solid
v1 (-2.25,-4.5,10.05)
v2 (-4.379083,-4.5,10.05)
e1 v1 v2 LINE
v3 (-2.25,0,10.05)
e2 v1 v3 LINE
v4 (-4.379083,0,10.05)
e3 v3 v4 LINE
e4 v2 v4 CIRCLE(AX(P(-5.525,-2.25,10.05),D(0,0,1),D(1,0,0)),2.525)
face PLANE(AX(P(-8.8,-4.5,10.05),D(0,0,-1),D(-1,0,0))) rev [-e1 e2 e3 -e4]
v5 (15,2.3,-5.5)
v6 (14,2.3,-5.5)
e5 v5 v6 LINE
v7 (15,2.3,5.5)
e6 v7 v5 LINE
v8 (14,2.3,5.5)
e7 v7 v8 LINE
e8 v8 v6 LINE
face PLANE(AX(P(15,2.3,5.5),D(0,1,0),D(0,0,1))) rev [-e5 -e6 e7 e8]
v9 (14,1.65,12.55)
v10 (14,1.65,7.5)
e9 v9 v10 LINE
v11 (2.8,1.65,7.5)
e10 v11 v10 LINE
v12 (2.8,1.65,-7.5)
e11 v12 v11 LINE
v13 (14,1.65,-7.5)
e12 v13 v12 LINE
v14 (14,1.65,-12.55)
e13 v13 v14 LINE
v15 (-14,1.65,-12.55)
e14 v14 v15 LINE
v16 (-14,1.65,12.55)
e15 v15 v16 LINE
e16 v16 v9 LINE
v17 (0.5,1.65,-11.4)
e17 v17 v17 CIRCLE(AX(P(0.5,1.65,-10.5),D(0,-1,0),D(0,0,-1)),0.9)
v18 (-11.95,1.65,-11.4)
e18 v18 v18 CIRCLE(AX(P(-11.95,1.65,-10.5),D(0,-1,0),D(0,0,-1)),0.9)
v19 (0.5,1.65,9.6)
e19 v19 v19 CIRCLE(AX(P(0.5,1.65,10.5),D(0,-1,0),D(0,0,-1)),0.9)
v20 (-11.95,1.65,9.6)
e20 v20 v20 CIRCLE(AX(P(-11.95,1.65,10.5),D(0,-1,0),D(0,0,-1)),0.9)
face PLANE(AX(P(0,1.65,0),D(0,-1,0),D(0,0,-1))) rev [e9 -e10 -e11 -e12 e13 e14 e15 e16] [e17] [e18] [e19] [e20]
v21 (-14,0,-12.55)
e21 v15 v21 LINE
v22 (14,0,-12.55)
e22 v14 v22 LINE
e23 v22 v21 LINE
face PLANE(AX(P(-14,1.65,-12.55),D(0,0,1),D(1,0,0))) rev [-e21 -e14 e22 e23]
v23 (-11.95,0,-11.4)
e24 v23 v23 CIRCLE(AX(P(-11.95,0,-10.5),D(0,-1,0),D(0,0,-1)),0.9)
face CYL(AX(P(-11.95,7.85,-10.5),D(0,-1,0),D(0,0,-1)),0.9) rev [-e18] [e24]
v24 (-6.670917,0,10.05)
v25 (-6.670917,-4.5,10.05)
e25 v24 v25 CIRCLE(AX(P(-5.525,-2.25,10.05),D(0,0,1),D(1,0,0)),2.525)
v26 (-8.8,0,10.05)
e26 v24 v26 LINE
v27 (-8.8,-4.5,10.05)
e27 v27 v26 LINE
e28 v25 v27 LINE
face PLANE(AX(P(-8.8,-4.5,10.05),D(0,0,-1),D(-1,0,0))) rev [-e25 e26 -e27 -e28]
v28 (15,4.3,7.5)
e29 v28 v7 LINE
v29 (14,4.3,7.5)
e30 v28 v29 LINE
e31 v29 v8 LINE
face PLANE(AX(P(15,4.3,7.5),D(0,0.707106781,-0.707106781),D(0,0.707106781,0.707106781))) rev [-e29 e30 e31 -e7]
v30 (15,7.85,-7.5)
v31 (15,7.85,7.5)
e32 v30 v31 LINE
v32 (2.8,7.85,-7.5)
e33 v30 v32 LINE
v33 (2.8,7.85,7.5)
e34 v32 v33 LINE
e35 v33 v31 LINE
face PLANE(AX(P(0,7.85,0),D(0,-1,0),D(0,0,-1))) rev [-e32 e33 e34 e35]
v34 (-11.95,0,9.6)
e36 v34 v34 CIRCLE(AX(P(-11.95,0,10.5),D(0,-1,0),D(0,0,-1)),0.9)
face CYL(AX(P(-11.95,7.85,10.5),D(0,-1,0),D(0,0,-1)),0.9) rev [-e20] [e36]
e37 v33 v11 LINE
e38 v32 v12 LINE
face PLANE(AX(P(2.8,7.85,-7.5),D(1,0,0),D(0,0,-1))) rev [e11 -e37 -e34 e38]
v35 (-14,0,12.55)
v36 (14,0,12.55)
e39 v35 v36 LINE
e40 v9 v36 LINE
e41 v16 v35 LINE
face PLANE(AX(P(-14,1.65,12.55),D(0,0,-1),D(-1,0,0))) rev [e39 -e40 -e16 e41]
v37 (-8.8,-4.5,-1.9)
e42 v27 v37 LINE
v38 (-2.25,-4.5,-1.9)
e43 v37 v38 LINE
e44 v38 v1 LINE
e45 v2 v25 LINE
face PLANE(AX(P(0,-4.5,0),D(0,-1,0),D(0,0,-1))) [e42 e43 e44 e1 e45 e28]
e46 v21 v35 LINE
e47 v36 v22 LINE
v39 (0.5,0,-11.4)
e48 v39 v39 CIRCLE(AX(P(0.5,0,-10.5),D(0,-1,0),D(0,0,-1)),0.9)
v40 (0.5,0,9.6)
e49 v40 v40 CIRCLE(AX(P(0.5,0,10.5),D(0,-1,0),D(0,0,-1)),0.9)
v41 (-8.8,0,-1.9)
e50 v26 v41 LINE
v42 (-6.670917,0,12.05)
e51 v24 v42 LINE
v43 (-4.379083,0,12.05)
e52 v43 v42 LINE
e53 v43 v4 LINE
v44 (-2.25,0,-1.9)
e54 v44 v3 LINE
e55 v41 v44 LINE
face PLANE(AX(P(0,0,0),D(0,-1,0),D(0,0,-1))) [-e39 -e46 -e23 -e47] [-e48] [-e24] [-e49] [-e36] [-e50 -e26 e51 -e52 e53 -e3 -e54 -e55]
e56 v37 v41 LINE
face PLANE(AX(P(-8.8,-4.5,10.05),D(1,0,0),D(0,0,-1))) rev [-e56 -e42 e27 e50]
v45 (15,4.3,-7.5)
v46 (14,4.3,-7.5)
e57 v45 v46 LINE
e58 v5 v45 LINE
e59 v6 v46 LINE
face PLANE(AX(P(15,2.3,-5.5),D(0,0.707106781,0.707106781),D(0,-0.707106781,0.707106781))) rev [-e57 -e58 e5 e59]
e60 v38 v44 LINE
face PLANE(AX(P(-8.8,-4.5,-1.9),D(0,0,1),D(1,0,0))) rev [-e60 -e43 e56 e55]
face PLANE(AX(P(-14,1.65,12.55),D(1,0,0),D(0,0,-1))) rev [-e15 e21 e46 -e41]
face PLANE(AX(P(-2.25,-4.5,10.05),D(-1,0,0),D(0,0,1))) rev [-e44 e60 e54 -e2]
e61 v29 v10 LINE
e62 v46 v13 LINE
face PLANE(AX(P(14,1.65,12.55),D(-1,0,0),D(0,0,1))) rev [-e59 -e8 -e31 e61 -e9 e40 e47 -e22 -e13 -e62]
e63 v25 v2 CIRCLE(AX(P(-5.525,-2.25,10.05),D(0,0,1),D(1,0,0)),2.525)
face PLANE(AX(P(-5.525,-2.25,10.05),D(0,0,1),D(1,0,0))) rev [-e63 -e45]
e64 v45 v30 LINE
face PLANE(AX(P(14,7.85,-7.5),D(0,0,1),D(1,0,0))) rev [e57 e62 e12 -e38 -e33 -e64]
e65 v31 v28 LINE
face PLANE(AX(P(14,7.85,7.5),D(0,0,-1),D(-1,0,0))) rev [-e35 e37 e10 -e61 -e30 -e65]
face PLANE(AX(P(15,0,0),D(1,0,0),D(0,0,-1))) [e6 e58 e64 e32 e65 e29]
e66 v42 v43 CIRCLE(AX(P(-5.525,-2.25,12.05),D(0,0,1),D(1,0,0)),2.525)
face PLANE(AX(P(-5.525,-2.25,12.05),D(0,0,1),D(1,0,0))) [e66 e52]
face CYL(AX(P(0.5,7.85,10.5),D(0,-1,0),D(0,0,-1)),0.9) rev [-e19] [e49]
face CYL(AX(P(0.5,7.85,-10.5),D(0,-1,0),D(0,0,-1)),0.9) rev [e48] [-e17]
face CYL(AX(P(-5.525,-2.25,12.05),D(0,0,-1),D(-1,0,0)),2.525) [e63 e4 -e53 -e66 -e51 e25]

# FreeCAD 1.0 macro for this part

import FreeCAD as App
import Part
import Sketcher

V = App.Vector


def add_polygon(sketch, points):
    """Adds a closed chain of lines whose ends are joined by coincident constraints."""
    first, n = sketch.GeometryCount, len(points)
    for a, b in zip(points, points[1:] + points[:1]):
        sketch.addGeometry(Part.LineSegment(App.Vector(*a, 0), App.Vector(*b, 0)), False)
    for i in range(n):
        sketch.addConstraint(Sketcher.Constraint("Coincident", first + i, 2, first + (i + 1) % n, 1))

doc = App.newDocument("Part")
body = doc.addObject("PartDesign::Body", "Body")

# Sketch on XZ plane
sketch1 = body.newObject("Sketcher::SketchObject", "Sketch")
sketch1.AttachmentSupport = (doc.getObject("XZ_Plane"), [""])
sketch1.MapMode = "FlatFace"
add_polygon(sketch1, [(-14, -13), (-14, 13), (14, 13), (14, -13)])  # lines 0-3
sketch1.addConstraint([
    Sketcher.Constraint("Vertical", 0),
    Sketcher.Constraint("Horizontal", 1),
    Sketcher.Constraint("Vertical", 2),
    Sketcher.Constraint("Horizontal", 3),
    Sketcher.Constraint("Symmetric", 0, 2, 2, 2, -1, 1),
    Sketcher.Constraint("DistanceX", 1, 1, 1, 2, 28.0),
    Sketcher.Constraint("DistanceY", 0, 1, 0, 2, 25.1),
])
pad1 = body.newObject("PartDesign::Pad", "Pad")
pad1.Profile = sketch1
pad1.Length = 1.65
pad1.Reversed = True

# Sketch on XZ plane
sketch2 = body.newObject("Sketcher::SketchObject", "Sketch001")
sketch2.AttachmentSupport = (doc.getObject("XZ_Plane"), [""])
sketch2.MapMode = "FlatFace"
sketch2.AttachmentOffset = App.Placement(V(0, 0, -1.65), App.Rotation())
add_polygon(sketch2, [(3, -8), (3, 8), (14, 8), (14, -8)])  # lines 0-3
sketch2.addConstraint([
    Sketcher.Constraint("Vertical", 0),
    Sketcher.Constraint("Horizontal", 1),
    Sketcher.Constraint("Vertical", 2),
    Sketcher.Constraint("Horizontal", 3),
    Sketcher.Constraint("DistanceY", 0, 1, 0, 2, 15.0),
    Sketcher.Constraint("DistanceX", 1, 1, 1, 2, 11.2),
    Sketcher.Constraint("DistanceX", -1, 1, 1, 2, 14.0),
    Sketcher.Constraint("DistanceY", -1, 1, 0, 2, 7.5),
])
pad2 = body.newObject("PartDesign::Pad", "Pad001")
pad2.Profile = sketch2
pad2.Length = 6.2
pad2.Reversed = True

# Sketch on YZ plane
sketch3 = body.newObject("Sketcher::SketchObject", "Sketch002")
sketch3.AttachmentSupport = (doc.getObject("YZ_Plane"), [""])
sketch3.MapMode = "FlatFace"
sketch3.AttachmentOffset = App.Placement(V(0, 0, 14), App.Rotation())
add_polygon(sketch3, [(7.8, 7.5), (4.3, 7.5), (2.3, 5.5), (2.3, -5.5), (4.3, -7.5), (7.8, -7.5)])  # lines 0-5
sketch3.addConstraint([
    Sketcher.Constraint("Horizontal", 0),
    Sketcher.Constraint("Vertical", 2),
    Sketcher.Constraint("Horizontal", 4),
    Sketcher.Constraint("Vertical", 5),
    Sketcher.Constraint("Symmetric", 0, 2, 3, 2, -1),
    Sketcher.Constraint("Perpendicular", 1, 3),
    Sketcher.Constraint("Equal", 1, 3),
    Sketcher.Constraint("DistanceY", 2, 2, 2, 1, 11.0),
    Sketcher.Constraint("DistanceY", 5, 1, 5, 2, 15.0),
    Sketcher.Constraint("DistanceX", 0, 2, 0, 1, 3.55),
    Sketcher.Constraint("DistanceX", -1, 1, 0, 2, 4.3),
])
pad3 = body.newObject("PartDesign::Pad", "Pad002")
pad3.Profile = sketch3
pad3.Length = 1

# Sketch on XZ plane
sketch4 = body.newObject("Sketcher::SketchObject", "Sketch003")
sketch4.AttachmentSupport = (doc.getObject("XZ_Plane"), [""])
sketch4.MapMode = "FlatFace"
add_polygon(sketch4, [(-9, 10), (-9, -2), (-2, -2), (-2, 10)])  # lines 0-3
sketch4.addConstraint([
    Sketcher.Constraint("Vertical", 0),
    Sketcher.Constraint("Horizontal", 1),
    Sketcher.Constraint("Vertical", 2),
    Sketcher.Constraint("Horizontal", 3),
    Sketcher.Constraint("DistanceX", 1, 1, 1, 2, 6.55),
    Sketcher.Constraint("DistanceY", 0, 2, 0, 1, 11.95),
    Sketcher.Constraint("DistanceX", 0, 2, -1, 1, 8.8),
    Sketcher.Constraint("DistanceY", 0, 2, -1, 1, 1.9),
])
pad4 = body.newObject("PartDesign::Pad", "Pad003")
pad4.Profile = sketch4
pad4.Length = 4.5

# Sketch on XY plane
sketch5 = body.newObject("Sketcher::SketchObject", "Sketch004")
sketch5.AttachmentSupport = (doc.getObject("XY_Plane"), [""])
sketch5.MapMode = "FlatFace"
sketch5.AttachmentOffset = App.Placement(V(0, 0, 10.05), App.Rotation())
sketch5.addGeometry(Part.Circle(V(-5.5, -2.2, 0), V(0, 0, 1), 2.5), False)
sketch5.addConstraint([
    Sketcher.Constraint("Diameter", 0, 5.05),
    Sketcher.Constraint("DistanceY", 0, 3, -1, 1, 2.25),
    Sketcher.Constraint("DistanceX", 0, 3, -1, 1, 5.525),
])
pad5 = body.newObject("PartDesign::Pad", "Pad004")
pad5.Profile = sketch5
pad5.Length = 2

# Sketch on XZ plane
sketch6 = body.newObject("Sketcher::SketchObject", "Sketch005")
sketch6.AttachmentSupport = (doc.getObject("XZ_Plane"), [""])
sketch6.MapMode = "FlatFace"
sketch6.addGeometry([
    Part.Circle(V(-11.9, 10.5, 0), V(0, 0, 1), 0.9),
    Part.Circle(V(-11.9, -10.5, 0), V(0, 0, 1), 0.9),
    Part.Circle(V(0.5, -10.5, 0), V(0, 0, 1), 0.9),
    Part.Circle(V(0.5, 10.5, 0), V(0, 0, 1), 0.9),
], False)
sketch6.addConstraint([
    Sketcher.Constraint("Equal", 0, 1),
    Sketcher.Constraint("Equal", 1, 2),
    Sketcher.Constraint("Equal", 2, 3),
    Sketcher.Constraint("Symmetric", 0, 3, 1, 3, -1),
    Sketcher.Constraint("Symmetric", 2, 3, 3, 3, -1),
    Sketcher.Constraint("Horizontal", 1, 3, 2, 3),
    Sketcher.Constraint("Diameter", 0, 1.8),
    Sketcher.Constraint("DistanceY", 1, 3, 0, 3, 21.0),
    Sketcher.Constraint("DistanceX", -1, 1, 2, 3, 0.5),
    Sketcher.Constraint("DistanceX", 0, 3, -1, 1, 11.95),
])
pocket1 = body.newObject("PartDesign::Pocket", "Pocket")
pocket1.Profile = sketch6
pocket1.Type = "ThroughAll"

doc.recompute()
